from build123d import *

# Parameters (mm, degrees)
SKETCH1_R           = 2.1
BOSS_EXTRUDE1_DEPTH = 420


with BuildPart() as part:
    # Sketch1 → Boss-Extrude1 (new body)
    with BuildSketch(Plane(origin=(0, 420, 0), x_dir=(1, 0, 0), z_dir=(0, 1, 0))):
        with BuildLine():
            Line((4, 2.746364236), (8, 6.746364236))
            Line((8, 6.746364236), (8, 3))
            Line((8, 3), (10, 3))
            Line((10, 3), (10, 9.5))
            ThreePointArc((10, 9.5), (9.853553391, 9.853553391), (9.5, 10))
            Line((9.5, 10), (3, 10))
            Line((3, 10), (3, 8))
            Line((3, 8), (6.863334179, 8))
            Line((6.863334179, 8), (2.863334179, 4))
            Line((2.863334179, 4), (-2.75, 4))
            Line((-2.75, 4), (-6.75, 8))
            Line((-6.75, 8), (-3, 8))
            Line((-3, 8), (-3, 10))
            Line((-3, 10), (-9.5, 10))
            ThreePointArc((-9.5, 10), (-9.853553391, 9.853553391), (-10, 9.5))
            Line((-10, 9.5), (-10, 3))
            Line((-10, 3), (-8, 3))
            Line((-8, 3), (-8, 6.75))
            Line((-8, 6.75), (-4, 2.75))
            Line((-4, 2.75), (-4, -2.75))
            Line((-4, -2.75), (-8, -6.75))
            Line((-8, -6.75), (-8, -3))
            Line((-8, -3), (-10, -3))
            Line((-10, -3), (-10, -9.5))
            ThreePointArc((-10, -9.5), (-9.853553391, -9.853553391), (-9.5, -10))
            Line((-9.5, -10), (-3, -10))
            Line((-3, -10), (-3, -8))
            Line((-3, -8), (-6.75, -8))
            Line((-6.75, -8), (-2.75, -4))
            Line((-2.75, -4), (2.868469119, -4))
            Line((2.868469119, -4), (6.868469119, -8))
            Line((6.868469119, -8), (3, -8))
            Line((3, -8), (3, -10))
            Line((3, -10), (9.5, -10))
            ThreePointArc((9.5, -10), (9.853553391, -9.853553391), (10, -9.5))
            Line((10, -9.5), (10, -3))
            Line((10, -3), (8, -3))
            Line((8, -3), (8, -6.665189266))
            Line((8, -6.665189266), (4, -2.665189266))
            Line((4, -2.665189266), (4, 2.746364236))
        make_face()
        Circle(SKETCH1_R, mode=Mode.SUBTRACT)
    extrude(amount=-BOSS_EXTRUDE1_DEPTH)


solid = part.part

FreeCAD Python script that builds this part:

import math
import FreeCAD as App
import Part
import Sketcher

V = App.Vector
Q = App.Units.Quantity

doc = App.newDocument("Part")
body = doc.addObject("PartDesign::Body", "Body")

sketch1 = doc.addObject("Sketcher::SketchObject", "Sketch")
body.addObject(sketch1)
sketch1.AttachmentSupport = (doc.XZ_Plane, [""])
sketch1.MapMode = "FlatFace"
sketch1.AttachmentOffset = App.Placement(V(0, 0, -420), App.Rotation())
sketch1.addGeometry(Part.LineSegment(V(4, -2.75, 0), V(8, -6.75, 0)), False)
sketch1.addGeometry(Part.LineSegment(V(8, -6.75, 0), V(8, -3, 0)), False)
sketch1.addGeometry(Part.LineSegment(V(8, -3, 0), V(10, -3, 0)), False)
sketch1.addGeometry(Part.LineSegment(V(10, -3, 0), V(10, -9.5, 0)), False)
sketch1.addGeometry(Part.ArcOfCircle(Part.Circle(V(9.5, -9.5, 0), V(0, 0, 1), 0.5), math.radians(-90), math.radians(0)), False)
sketch1.addGeometry(Part.LineSegment(V(9.5, -10, 0), V(3, -10, 0)), False)
sketch1.addGeometry(Part.LineSegment(V(3, -10, 0), V(3, -8, 0)), False)
sketch1.addGeometry(Part.LineSegment(V(3, -8, 0), V(6.86, -8, 0)), False)
sketch1.addGeometry(Part.LineSegment(V(6.86, -8, 0), V(2.86, -4, 0)), False)
sketch1.addGeometry(Part.LineSegment(V(2.86, -4, 0), V(-2.75, -4, 0)), False)
sketch1.addGeometry(Part.LineSegment(V(-2.75, -4, 0), V(-6.75, -8, 0)), False)
sketch1.addGeometry(Part.LineSegment(V(-6.75, -8, 0), V(-3, -8, 0)), False)
sketch1.addGeometry(Part.LineSegment(V(-3, -8, 0), V(-3, -10, 0)), False)
sketch1.addGeometry(Part.LineSegment(V(-3, -10, 0), V(-9.5, -10, 0)), False)
sketch1.addGeometry(Part.ArcOfCircle(Part.Circle(V(-9.5, -9.5, 0), V(0, 0, 1), 0.5), math.radians(180), math.radians(270)), False)
sketch1.addGeometry(Part.LineSegment(V(-10, -9.5, 0), V(-10, -3, 0)), False)
sketch1.addGeometry(Part.LineSegment(V(-10, -3, 0), V(-8, -3, 0)), False)
sketch1.addGeometry(Part.LineSegment(V(-8, -3, 0), V(-8, -6.75, 0)), False)
sketch1.addGeometry(Part.LineSegment(V(-8, -6.75, 0), V(-4, -2.75, 0)), False)
sketch1.addGeometry(Part.LineSegment(V(-4, -2.75, 0), V(-4, 2.75, 0)), False)
sketch1.addGeometry(Part.LineSegment(V(-4, 2.75, 0), V(-8, 6.75, 0)), False)
sketch1.addGeometry(Part.LineSegment(V(-8, 6.75, 0), V(-8, 3, 0)), False)
sketch1.addGeometry(Part.LineSegment(V(-8, 3, 0), V(-10, 3, 0)), False)
sketch1.addGeometry(Part.LineSegment(V(-10, 3, 0), V(-10, 9.5, 0)), False)
sketch1.addGeometry(Part.ArcOfCircle(Part.Circle(V(-9.5, 9.5, 0), V(0, 0, 1), 0.5), math.radians(90), math.radians(180)), False)
sketch1.addGeometry(Part.LineSegment(V(-9.5, 10, 0), V(-3, 10, 0)), False)
sketch1.addGeometry(Part.LineSegment(V(-3, 10, 0), V(-3, 8, 0)), False)
sketch1.addGeometry(Part.LineSegment(V(-3, 8, 0), V(-6.75, 8, 0)), False)
sketch1.addGeometry(Part.LineSegment(V(-6.75, 8, 0), V(-2.75, 4, 0)), False)
sketch1.addGeometry(Part.LineSegment(V(-2.75, 4, 0), V(2.87, 4, 0)), False)
sketch1.addGeometry(Part.LineSegment(V(2.87, 4, 0), V(6.87, 8, 0)), False)
sketch1.addGeometry(Part.LineSegment(V(6.87, 8, 0), V(3, 8, 0)), False)
sketch1.addGeometry(Part.LineSegment(V(3, 8, 0), V(3, 10, 0)), False)
sketch1.addGeometry(Part.LineSegment(V(3, 10, 0), V(9.5, 10, 0)), False)
sketch1.addGeometry(Part.ArcOfCircle(Part.Circle(V(9.5, 9.5, 0), V(0, 0, 1), 0.5), math.radians(0), math.radians(90)), False)
sketch1.addGeometry(Part.LineSegment(V(10, 9.5, 0), V(10, 3, 0)), False)
sketch1.addGeometry(Part.LineSegment(V(10, 3, 0), V(8, 3, 0)), False)
sketch1.addGeometry(Part.LineSegment(V(8, 3, 0), V(8, 6.67, 0)), False)
sketch1.addGeometry(Part.LineSegment(V(8, 6.67, 0), V(4, 2.67, 0)), False)
sketch1.addGeometry(Part.LineSegment(V(4, 2.67, 0), V(4, -2.75, 0)), False)
sketch1.addGeometry(Part.Circle(V(0, 0, 0), V(0, 0, 1), 2.1), False)
sketch1.addConstraint(Sketcher.Constraint("Coincident", 0, 2, 1, 1))
sketch1.addConstraint(Sketcher.Constraint("Coincident", 1, 2, 2, 1))
sketch1.addConstraint(Sketcher.Constraint("Coincident", 2, 2, 3, 1))
sketch1.addConstraint(Sketcher.Constraint("Tangent", 3, 2, 4, 2))
sketch1.addConstraint(Sketcher.Constraint("Tangent", 4, 1, 5, 1))
sketch1.addConstraint(Sketcher.Constraint("Coincident", 5, 2, 6, 1))
sketch1.addConstraint(Sketcher.Constraint("Coincident", 6, 2, 7, 1))
sketch1.addConstraint(Sketcher.Constraint("Coincident", 7, 2, 8, 1))
sketch1.addConstraint(Sketcher.Constraint("Coincident", 8, 2, 9, 1))
sketch1.addConstraint(Sketcher.Constraint("Coincident", 9, 2, 10, 1))
sketch1.addConstraint(Sketcher.Constraint("Coincident", 10, 2, 11, 1))
sketch1.addConstraint(Sketcher.Constraint("Coincident", 11, 2, 12, 1))
sketch1.addConstraint(Sketcher.Constraint("Coincident", 12, 2, 13, 1))
sketch1.addConstraint(Sketcher.Constraint("Tangent", 13, 2, 14, 2))
sketch1.addConstraint(Sketcher.Constraint("Tangent", 14, 1, 15, 1))
sketch1.addConstraint(Sketcher.Constraint("Coincident", 15, 2, 16, 1))
sketch1.addConstraint(Sketcher.Constraint("Coincident", 16, 2, 17, 1))
sketch1.addConstraint(Sketcher.Constraint("Coincident", 17, 2, 18, 1))
sketch1.addConstraint(Sketcher.Constraint("Coincident", 18, 2, 19, 1))
sketch1.addConstraint(Sketcher.Constraint("Coincident", 19, 2, 20, 1))
sketch1.addConstraint(Sketcher.Constraint("Coincident", 20, 2, 21, 1))
sketch1.addConstraint(Sketcher.Constraint("Coincident", 21, 2, 22, 1))
sketch1.addConstraint(Sketcher.Constraint("Coincident", 22, 2, 23, 1))
sketch1.addConstraint(Sketcher.Constraint("Tangent", 23, 2, 24, 2))
sketch1.addConstraint(Sketcher.Constraint("Tangent", 24, 1, 25, 1))
sketch1.addConstraint(Sketcher.Constraint("Coincident", 25, 2, 26, 1))
sketch1.addConstraint(Sketcher.Constraint("Coincident", 26, 2, 27, 1))
sketch1.addConstraint(Sketcher.Constraint("Coincident", 27, 2, 28, 1))
sketch1.addConstraint(Sketcher.Constraint("Coincident", 28, 2, 29, 1))
sketch1.addConstraint(Sketcher.Constraint("Coincident", 29, 2, 30, 1))
sketch1.addConstraint(Sketcher.Constraint("Coincident", 30, 2, 31, 1))
sketch1.addConstraint(Sketcher.Constraint("Coincident", 31, 2, 32, 1))
sketch1.addConstraint(Sketcher.Constraint("Coincident", 32, 2, 33, 1))
sketch1.addConstraint(Sketcher.Constraint("Tangent", 33, 2, 34, 2))
sketch1.addConstraint(Sketcher.Constraint("Tangent", 34, 1, 35, 1))
sketch1.addConstraint(Sketcher.Constraint("Coincident", 35, 2, 36, 1))
sketch1.addConstraint(Sketcher.Constraint("Coincident", 36, 2, 37, 1))
sketch1.addConstraint(Sketcher.Constraint("Coincident", 37, 2, 38, 1))
sketch1.addConstraint(Sketcher.Constraint("Coincident", 38, 2, 39, 1))
sketch1.addConstraint(Sketcher.Constraint("Coincident", 39, 2, 0, 1))
sketch1.addConstraint(Sketcher.Constraint("Vertical", 1))
sketch1.addConstraint(Sketcher.Constraint("Horizontal", 2))
sketch1.addConstraint(Sketcher.Constraint("Vertical", 3))
sketch1.addConstraint(Sketcher.Constraint("Horizontal", 5))
sketch1.addConstraint(Sketcher.Constraint("Vertical", 6))
sketch1.addConstraint(Sketcher.Constraint("Horizontal", 7))
sketch1.addConstraint(Sketcher.Constraint("Horizontal", 9))
sketch1.addConstraint(Sketcher.Constraint("Horizontal", 11))
sketch1.addConstraint(Sketcher.Constraint("Vertical", 12))
sketch1.addConstraint(Sketcher.Constraint("Horizontal", 13))
sketch1.addConstraint(Sketcher.Constraint("Vertical", 15))
sketch1.addConstraint(Sketcher.Constraint("Horizontal", 16))
sketch1.addConstraint(Sketcher.Constraint("Vertical", 17))
sketch1.addConstraint(Sketcher.Constraint("Vertical", 19))
sketch1.addConstraint(Sketcher.Constraint("Vertical", 21))
sketch1.addConstraint(Sketcher.Constraint("Horizontal", 22))
sketch1.addConstraint(Sketcher.Constraint("Vertical", 23))
sketch1.addConstraint(Sketcher.Constraint("Horizontal", 25))
sketch1.addConstraint(Sketcher.Constraint("Vertical", 26))
sketch1.addConstraint(Sketcher.Constraint("Horizontal", 27))
sketch1.addConstraint(Sketcher.Constraint("Horizontal", 29))
sketch1.addConstraint(Sketcher.Constraint("Horizontal", 31))
sketch1.addConstraint(Sketcher.Constraint("Vertical", 32))
sketch1.addConstraint(Sketcher.Constraint("Horizontal", 33))
sketch1.addConstraint(Sketcher.Constraint("Vertical", 35))
sketch1.addConstraint(Sketcher.Constraint("Horizontal", 36))
sketch1.addConstraint(Sketcher.Constraint("Vertical", 37))
sketch1.addConstraint(Sketcher.Constraint("Vertical", 39))
sketch1.addConstraint(Sketcher.Constraint("Coincident", 40, 3, -1, 1))
sketch1.addConstraint(Sketcher.Constraint("Equal", 4, 14))
sketch1.addConstraint(Sketcher.Constraint("Equal", 14, 24))
sketch1.addConstraint(Sketcher.Constraint("Equal", 24, 34))
sketch1.addConstraint(Sketcher.Constraint("Symmetric", 4, 3, 24, 3, -1, 1))
sketch1.addConstraint(Sketcher.Constraint("Symmetric", 14, 3, 34, 3, -1, 1))
sketch1.addConstraint(Sketcher.Constraint("Symmetric", 1, 2, 21, 2, -1, 1))
sketch1.addConstraint(Sketcher.Constraint("Symmetric", 6, 2, 26, 2, -1, 1))
sketch1.addConstraint(Sketcher.Constraint("Symmetric", 11, 2, 31, 2, -1, 1))
sketch1.addConstraint(Sketcher.Constraint("Symmetric", 16, 2, 36, 2, -1, 1))
sketch1.addConstraint(Sketcher.Constraint("Symmetric", 4, 3, 14, 3, -2))
sketch1.addConstraint(Sketcher.Constraint("Symmetric", 6, 2, 11, 2, -2))
sketch1.addConstraint(Sketcher.Constraint("Symmetric", 1, 2, 16, 2, -2))
sketch1.addConstraint(Sketcher.Constraint("Symmetric", 9, 2, 28, 2, -1))
sketch1.addConstraint(Sketcher.Constraint("Parallel", 0, 8))
sketch1.addConstraint(Sketcher.Constraint("Perpendicular", 8, 10))
sketch1.addConstraint(Sketcher.Constraint("Parallel", 10, 18))
sketch1.addConstraint(Sketcher.Constraint("Perpendicular", 18, 20))
sketch1.addConstraint(Sketcher.Constraint("Parallel", 20, 28))
sketch1.addConstraint(Sketcher.Constraint("Perpendicular", 28, 30))
sketch1.addConstraint(Sketcher.Constraint("Parallel", 30, 38))
sketch1.addConstraint(Sketcher.Constraint("Vertical", 10, 2, 27, 2))
sketch1.addConstraint(Sketcher.Constraint("Equal", 33, 3))
sketch1.addConstraint(Sketcher.Constraint("Equal", 36, 6))
sketch1.addConstraint(Sketcher.Constraint("Equal", 27, 17))
sketch1.addConstraint(Sketcher.Constraint("Equal", 17, 21))
sketch1.addConstraint(Sketcher.Constraint("Equal", 0, 8))
sketch1.addConstraint(Sketcher.Constraint("Equal", 10, 18))
sketch1.addConstraint(Sketcher.Constraint("Diameter", 40, Q("4.2 mm")))
sketch1.addConstraint(Sketcher.Constraint("Radius", 4, Q("0.5 mm")))
sketch1.addConstraint(Sketcher.Constraint("DistanceX", 2, 1, 2, 2, Q("2 mm")))
sketch1.addConstraint(Sketcher.Constraint("DistanceX", 5, 2, 5, 1, Q("6.5 mm")))
sketch1.addConstraint(Sketcher.Constraint("DistanceY", 19, 1, 19, 2, Q("5.5 mm")))
sketch1.addConstraint(Sketcher.Constraint("DistanceX", -1, 1, 0, 2, Q("8 mm")))
sketch1.addConstraint(Sketcher.Constraint("DistanceY", 1, 2, -1, 1, Q("3 mm")))
sketch1.addConstraint(Sketcher.Constraint("DistanceY", 8, 2, -1, 1, Q("4 mm")))
sketch1.addConstraint(Sketcher.Constraint("DistanceX", 29, 1, 29, 2, Q("5.618469 mm")))
sketch1.addConstraint(Sketcher.Constraint("DistanceY", 37, 1, 37, 2, Q("3.665189 mm")))
sketch1.addConstraint(Sketcher.Constraint("DistanceX", 7, 1, 7, 2, Q("3.863334 mm")))
sketch1.addConstraint(Sketcher.Constraint("DistanceY", 1, 1, 1, 2, Q("3.746364 mm")))
pad1 = doc.addObject("PartDesign::Pad", "Pad")
body.addObject(pad1)
pad1.Profile = sketch1
pad1.Length = 420

doc.recompute()
